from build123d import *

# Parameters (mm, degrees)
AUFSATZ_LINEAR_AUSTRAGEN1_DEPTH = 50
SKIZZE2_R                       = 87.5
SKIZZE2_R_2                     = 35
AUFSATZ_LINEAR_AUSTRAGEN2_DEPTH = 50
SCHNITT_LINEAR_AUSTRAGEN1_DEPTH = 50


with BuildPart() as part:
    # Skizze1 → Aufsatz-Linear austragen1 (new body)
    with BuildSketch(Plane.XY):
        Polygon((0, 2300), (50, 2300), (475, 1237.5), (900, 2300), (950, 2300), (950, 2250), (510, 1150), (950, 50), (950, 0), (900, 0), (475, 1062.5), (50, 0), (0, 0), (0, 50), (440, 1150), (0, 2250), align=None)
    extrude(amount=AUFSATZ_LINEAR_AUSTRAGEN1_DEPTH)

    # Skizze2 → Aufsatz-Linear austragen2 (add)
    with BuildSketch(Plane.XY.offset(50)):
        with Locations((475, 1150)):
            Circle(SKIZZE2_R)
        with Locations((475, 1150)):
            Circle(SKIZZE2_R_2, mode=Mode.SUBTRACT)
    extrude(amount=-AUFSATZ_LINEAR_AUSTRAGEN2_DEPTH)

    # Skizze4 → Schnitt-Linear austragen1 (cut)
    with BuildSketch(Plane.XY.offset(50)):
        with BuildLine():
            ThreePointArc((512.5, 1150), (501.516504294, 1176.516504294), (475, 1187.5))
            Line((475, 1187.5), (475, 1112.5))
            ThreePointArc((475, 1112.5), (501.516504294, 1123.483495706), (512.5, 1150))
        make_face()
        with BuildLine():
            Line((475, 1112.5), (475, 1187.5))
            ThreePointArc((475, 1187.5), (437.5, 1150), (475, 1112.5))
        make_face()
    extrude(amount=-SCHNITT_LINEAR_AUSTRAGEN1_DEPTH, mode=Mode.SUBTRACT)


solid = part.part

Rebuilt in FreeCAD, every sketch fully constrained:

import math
import FreeCAD as App
import Part
import Sketcher

V = App.Vector
Q = App.Units.Quantity


def add_polygon(sketch, points):
    """Adds a closed chain of lines whose ends are joined by coincident constraints."""
    first, n = sketch.GeometryCount, len(points)
    for a, b in zip(points, points[1:] + points[:1]):
        sketch.addGeometry(Part.LineSegment(App.Vector(*a, 0), App.Vector(*b, 0)), False)
    for i in range(n):
        sketch.addConstraint(Sketcher.Constraint("Coincident", first + i, 2, first + (i + 1) % n, 1))

doc = App.newDocument("Part")
body = doc.addObject("PartDesign::Body", "Body")

# Sketch on XY plane
sketch1 = doc.addObject("Sketcher::SketchObject", "Sketch")
body.addObject(sketch1)
sketch1.AttachmentSupport = (doc.XY_Plane, [""])
sketch1.MapMode = "FlatFace"
add_polygon(sketch1, [(50, 2300), (0, 2300), (0, 2250), (440, 1150), (0, 50), (0, 0), (50, 0), (475, 1062.5), (900, 0), (950, 0), (950, 50), (510, 1150), (950, 2250), (950, 2300), (900, 2300), (475, 1237.5)])  # lines 0-15
sketch1.addConstraint(Sketcher.Constraint("Horizontal", 0))
sketch1.addConstraint(Sketcher.Constraint("Vertical", 1))
sketch1.addConstraint(Sketcher.Constraint("Vertical", 4))
sketch1.addConstraint(Sketcher.Constraint("Horizontal", 5))
sketch1.addConstraint(Sketcher.Constraint("Horizontal", 8))
sketch1.addConstraint(Sketcher.Constraint("Vertical", 9))
sketch1.addConstraint(Sketcher.Constraint("Vertical", 12))
sketch1.addConstraint(Sketcher.Constraint("Horizontal", 13))
sketch1.addConstraint(Sketcher.Constraint("Coincident", 4, 2, -1, 1))
sketch1.addConstraint(Sketcher.Constraint("PointOnObject", 0, 2, -2))
sketch1.addConstraint(Sketcher.Constraint("PointOnObject", 7, 2, -1))
sketch1.addConstraint(Sketcher.Constraint("Parallel", 3, 6))
sketch1.addConstraint(Sketcher.Constraint("Parallel", 2, 7))
sketch1.addConstraint(Sketcher.Constraint("Parallel", 7, 10))
sketch1.addConstraint(Sketcher.Constraint("Parallel", 6, 11))
sketch1.addConstraint(Sketcher.Constraint("Parallel", 11, 14))
sketch1.addConstraint(Sketcher.Constraint("Parallel", 10, 15))
sketch1.addConstraint(Sketcher.Constraint("Horizontal", 3, 2, 9, 2))
sketch1.addConstraint(Sketcher.Constraint("Horizontal", 2, 2, 10, 2))
sketch1.addConstraint(Sketcher.Constraint("Horizontal", 1, 2, 11, 2))
sketch1.addConstraint(Sketcher.Constraint("Horizontal", 0, 2, 12, 2))
sketch1.addConstraint(Sketcher.Constraint("Vertical", 9, 2, 11, 2))
sketch1.addConstraint(Sketcher.Constraint("Vertical", 7, 2, 13, 2))
sketch1.addConstraint(Sketcher.Constraint("Vertical", 6, 2, 14, 2))
sketch1.addConstraint(Sketcher.Constraint("Equal", 5, 8))
sketch1.addConstraint(Sketcher.Constraint("Equal", 13, 1))
sketch1.addConstraint(Sketcher.Constraint("Equal", 1, 4))
sketch1.addConstraint(Sketcher.Constraint("DistanceX", 0, 2, 0, 1, Q("50 mm")))
sketch1.addConstraint(Sketcher.Constraint("DistanceY", -1, 1, 0, 2, Q("2300 mm")))
sketch1.addConstraint(Sketcher.Constraint("DistanceX", -1, 1, 2, 2, Q("440 mm")))
sketch1.addConstraint(Sketcher.Constraint("DistanceX", -1, 1, 6, 2, Q("475 mm")))
pad1 = doc.addObject("PartDesign::Pad", "Pad")
body.addObject(pad1)
pad1.Profile = sketch1
pad1.Length = 50

# Sketch on XY plane
sketch2 = doc.addObject("Sketcher::SketchObject", "Sketch001")
body.addObject(sketch2)
sketch2.AttachmentSupport = (doc.XY_Plane, [""])
sketch2.MapMode = "FlatFace"
sketch2.AttachmentOffset = App.Placement(V(0, 0, 50), App.Rotation())
sketch2.addGeometry(Part.Circle(V(475, 1150, 0), V(0, 0, 1), 87.5), False)
sketch2.addGeometry(Part.Circle(V(475, 1150, 0), V(0, 0, 1), 35), False)
sketch2.addConstraint(Sketcher.Constraint("Coincident", 1, 3, 0, 3))
sketch2.addConstraint(Sketcher.Constraint("Diameter", 0, Q("175 mm")))
sketch2.addConstraint(Sketcher.Constraint("Diameter", 1, Q("70 mm")))
sketch2.addConstraint(Sketcher.Constraint("DistanceX", -1, 1, 0, 3, Q("475 mm")))
sketch2.addConstraint(Sketcher.Constraint("DistanceY", -1, 1, 0, 3, Q("1150 mm")))
pad2 = doc.addObject("PartDesign::Pad", "Pad001")
body.addObject(pad2)
pad2.Profile = sketch2
pad2.Length = 50
pad2.Reversed = True

# Sketch on XY plane
sketch3 = doc.addObject("Sketcher::SketchObject", "Sketch002")
body.addObject(sketch3)
sketch3.AttachmentSupport = (doc.XY_Plane, [""])
sketch3.MapMode = "FlatFace"
sketch3.AttachmentOffset = App.Placement(V(0, 0, 50), App.Rotation())
sketch3.addGeometry(Part.ArcOfCircle(Part.Circle(V(475, 1150, 0), V(0, 0, 1), 37.5), math.radians(0), math.radians(90)), False)
sketch3.addGeometry(Part.ArcOfCircle(Part.Circle(V(475, 1150, 0), V(0, 0, 1), 37.5), math.radians(90), math.radians(270)), False)
sketch3.addGeometry(Part.ArcOfCircle(Part.Circle(V(475, 1150, 0), V(0, 0, 1), 37.5), math.radians(-90), math.radians(0)), False)
sketch3.addConstraint(Sketcher.Constraint("Tangent", 0, 2, 1, 1))
sketch3.addConstraint(Sketcher.Constraint("Tangent", 1, 2, 2, 1))
sketch3.addConstraint(Sketcher.Constraint("Tangent", 2, 2, 0, 1))
sketch3.addConstraint(Sketcher.Constraint("Horizontal", 1, 3, 2, 2))
sketch3.addConstraint(Sketcher.Constraint("Vertical", 2, 3, 0, 2))
sketch3.addConstraint(Sketcher.Constraint("Vertical", 0, 2, 1, 2))
sketch3.addConstraint(Sketcher.Constraint("Radius", 0, Q("37.5 mm")))
sketch3.addConstraint(Sketcher.Constraint("DistanceX", -1, 1, 0, 3, Q("475 mm")))
sketch3.addConstraint(Sketcher.Constraint("DistanceY", -1, 1, 0, 3, Q("1150 mm")))
pocket1 = doc.addObject("PartDesign::Pocket", "Pocket")
body.addObject(pocket1)
pocket1.Profile = sketch3
pocket1.Length = 50

doc.recompute()
